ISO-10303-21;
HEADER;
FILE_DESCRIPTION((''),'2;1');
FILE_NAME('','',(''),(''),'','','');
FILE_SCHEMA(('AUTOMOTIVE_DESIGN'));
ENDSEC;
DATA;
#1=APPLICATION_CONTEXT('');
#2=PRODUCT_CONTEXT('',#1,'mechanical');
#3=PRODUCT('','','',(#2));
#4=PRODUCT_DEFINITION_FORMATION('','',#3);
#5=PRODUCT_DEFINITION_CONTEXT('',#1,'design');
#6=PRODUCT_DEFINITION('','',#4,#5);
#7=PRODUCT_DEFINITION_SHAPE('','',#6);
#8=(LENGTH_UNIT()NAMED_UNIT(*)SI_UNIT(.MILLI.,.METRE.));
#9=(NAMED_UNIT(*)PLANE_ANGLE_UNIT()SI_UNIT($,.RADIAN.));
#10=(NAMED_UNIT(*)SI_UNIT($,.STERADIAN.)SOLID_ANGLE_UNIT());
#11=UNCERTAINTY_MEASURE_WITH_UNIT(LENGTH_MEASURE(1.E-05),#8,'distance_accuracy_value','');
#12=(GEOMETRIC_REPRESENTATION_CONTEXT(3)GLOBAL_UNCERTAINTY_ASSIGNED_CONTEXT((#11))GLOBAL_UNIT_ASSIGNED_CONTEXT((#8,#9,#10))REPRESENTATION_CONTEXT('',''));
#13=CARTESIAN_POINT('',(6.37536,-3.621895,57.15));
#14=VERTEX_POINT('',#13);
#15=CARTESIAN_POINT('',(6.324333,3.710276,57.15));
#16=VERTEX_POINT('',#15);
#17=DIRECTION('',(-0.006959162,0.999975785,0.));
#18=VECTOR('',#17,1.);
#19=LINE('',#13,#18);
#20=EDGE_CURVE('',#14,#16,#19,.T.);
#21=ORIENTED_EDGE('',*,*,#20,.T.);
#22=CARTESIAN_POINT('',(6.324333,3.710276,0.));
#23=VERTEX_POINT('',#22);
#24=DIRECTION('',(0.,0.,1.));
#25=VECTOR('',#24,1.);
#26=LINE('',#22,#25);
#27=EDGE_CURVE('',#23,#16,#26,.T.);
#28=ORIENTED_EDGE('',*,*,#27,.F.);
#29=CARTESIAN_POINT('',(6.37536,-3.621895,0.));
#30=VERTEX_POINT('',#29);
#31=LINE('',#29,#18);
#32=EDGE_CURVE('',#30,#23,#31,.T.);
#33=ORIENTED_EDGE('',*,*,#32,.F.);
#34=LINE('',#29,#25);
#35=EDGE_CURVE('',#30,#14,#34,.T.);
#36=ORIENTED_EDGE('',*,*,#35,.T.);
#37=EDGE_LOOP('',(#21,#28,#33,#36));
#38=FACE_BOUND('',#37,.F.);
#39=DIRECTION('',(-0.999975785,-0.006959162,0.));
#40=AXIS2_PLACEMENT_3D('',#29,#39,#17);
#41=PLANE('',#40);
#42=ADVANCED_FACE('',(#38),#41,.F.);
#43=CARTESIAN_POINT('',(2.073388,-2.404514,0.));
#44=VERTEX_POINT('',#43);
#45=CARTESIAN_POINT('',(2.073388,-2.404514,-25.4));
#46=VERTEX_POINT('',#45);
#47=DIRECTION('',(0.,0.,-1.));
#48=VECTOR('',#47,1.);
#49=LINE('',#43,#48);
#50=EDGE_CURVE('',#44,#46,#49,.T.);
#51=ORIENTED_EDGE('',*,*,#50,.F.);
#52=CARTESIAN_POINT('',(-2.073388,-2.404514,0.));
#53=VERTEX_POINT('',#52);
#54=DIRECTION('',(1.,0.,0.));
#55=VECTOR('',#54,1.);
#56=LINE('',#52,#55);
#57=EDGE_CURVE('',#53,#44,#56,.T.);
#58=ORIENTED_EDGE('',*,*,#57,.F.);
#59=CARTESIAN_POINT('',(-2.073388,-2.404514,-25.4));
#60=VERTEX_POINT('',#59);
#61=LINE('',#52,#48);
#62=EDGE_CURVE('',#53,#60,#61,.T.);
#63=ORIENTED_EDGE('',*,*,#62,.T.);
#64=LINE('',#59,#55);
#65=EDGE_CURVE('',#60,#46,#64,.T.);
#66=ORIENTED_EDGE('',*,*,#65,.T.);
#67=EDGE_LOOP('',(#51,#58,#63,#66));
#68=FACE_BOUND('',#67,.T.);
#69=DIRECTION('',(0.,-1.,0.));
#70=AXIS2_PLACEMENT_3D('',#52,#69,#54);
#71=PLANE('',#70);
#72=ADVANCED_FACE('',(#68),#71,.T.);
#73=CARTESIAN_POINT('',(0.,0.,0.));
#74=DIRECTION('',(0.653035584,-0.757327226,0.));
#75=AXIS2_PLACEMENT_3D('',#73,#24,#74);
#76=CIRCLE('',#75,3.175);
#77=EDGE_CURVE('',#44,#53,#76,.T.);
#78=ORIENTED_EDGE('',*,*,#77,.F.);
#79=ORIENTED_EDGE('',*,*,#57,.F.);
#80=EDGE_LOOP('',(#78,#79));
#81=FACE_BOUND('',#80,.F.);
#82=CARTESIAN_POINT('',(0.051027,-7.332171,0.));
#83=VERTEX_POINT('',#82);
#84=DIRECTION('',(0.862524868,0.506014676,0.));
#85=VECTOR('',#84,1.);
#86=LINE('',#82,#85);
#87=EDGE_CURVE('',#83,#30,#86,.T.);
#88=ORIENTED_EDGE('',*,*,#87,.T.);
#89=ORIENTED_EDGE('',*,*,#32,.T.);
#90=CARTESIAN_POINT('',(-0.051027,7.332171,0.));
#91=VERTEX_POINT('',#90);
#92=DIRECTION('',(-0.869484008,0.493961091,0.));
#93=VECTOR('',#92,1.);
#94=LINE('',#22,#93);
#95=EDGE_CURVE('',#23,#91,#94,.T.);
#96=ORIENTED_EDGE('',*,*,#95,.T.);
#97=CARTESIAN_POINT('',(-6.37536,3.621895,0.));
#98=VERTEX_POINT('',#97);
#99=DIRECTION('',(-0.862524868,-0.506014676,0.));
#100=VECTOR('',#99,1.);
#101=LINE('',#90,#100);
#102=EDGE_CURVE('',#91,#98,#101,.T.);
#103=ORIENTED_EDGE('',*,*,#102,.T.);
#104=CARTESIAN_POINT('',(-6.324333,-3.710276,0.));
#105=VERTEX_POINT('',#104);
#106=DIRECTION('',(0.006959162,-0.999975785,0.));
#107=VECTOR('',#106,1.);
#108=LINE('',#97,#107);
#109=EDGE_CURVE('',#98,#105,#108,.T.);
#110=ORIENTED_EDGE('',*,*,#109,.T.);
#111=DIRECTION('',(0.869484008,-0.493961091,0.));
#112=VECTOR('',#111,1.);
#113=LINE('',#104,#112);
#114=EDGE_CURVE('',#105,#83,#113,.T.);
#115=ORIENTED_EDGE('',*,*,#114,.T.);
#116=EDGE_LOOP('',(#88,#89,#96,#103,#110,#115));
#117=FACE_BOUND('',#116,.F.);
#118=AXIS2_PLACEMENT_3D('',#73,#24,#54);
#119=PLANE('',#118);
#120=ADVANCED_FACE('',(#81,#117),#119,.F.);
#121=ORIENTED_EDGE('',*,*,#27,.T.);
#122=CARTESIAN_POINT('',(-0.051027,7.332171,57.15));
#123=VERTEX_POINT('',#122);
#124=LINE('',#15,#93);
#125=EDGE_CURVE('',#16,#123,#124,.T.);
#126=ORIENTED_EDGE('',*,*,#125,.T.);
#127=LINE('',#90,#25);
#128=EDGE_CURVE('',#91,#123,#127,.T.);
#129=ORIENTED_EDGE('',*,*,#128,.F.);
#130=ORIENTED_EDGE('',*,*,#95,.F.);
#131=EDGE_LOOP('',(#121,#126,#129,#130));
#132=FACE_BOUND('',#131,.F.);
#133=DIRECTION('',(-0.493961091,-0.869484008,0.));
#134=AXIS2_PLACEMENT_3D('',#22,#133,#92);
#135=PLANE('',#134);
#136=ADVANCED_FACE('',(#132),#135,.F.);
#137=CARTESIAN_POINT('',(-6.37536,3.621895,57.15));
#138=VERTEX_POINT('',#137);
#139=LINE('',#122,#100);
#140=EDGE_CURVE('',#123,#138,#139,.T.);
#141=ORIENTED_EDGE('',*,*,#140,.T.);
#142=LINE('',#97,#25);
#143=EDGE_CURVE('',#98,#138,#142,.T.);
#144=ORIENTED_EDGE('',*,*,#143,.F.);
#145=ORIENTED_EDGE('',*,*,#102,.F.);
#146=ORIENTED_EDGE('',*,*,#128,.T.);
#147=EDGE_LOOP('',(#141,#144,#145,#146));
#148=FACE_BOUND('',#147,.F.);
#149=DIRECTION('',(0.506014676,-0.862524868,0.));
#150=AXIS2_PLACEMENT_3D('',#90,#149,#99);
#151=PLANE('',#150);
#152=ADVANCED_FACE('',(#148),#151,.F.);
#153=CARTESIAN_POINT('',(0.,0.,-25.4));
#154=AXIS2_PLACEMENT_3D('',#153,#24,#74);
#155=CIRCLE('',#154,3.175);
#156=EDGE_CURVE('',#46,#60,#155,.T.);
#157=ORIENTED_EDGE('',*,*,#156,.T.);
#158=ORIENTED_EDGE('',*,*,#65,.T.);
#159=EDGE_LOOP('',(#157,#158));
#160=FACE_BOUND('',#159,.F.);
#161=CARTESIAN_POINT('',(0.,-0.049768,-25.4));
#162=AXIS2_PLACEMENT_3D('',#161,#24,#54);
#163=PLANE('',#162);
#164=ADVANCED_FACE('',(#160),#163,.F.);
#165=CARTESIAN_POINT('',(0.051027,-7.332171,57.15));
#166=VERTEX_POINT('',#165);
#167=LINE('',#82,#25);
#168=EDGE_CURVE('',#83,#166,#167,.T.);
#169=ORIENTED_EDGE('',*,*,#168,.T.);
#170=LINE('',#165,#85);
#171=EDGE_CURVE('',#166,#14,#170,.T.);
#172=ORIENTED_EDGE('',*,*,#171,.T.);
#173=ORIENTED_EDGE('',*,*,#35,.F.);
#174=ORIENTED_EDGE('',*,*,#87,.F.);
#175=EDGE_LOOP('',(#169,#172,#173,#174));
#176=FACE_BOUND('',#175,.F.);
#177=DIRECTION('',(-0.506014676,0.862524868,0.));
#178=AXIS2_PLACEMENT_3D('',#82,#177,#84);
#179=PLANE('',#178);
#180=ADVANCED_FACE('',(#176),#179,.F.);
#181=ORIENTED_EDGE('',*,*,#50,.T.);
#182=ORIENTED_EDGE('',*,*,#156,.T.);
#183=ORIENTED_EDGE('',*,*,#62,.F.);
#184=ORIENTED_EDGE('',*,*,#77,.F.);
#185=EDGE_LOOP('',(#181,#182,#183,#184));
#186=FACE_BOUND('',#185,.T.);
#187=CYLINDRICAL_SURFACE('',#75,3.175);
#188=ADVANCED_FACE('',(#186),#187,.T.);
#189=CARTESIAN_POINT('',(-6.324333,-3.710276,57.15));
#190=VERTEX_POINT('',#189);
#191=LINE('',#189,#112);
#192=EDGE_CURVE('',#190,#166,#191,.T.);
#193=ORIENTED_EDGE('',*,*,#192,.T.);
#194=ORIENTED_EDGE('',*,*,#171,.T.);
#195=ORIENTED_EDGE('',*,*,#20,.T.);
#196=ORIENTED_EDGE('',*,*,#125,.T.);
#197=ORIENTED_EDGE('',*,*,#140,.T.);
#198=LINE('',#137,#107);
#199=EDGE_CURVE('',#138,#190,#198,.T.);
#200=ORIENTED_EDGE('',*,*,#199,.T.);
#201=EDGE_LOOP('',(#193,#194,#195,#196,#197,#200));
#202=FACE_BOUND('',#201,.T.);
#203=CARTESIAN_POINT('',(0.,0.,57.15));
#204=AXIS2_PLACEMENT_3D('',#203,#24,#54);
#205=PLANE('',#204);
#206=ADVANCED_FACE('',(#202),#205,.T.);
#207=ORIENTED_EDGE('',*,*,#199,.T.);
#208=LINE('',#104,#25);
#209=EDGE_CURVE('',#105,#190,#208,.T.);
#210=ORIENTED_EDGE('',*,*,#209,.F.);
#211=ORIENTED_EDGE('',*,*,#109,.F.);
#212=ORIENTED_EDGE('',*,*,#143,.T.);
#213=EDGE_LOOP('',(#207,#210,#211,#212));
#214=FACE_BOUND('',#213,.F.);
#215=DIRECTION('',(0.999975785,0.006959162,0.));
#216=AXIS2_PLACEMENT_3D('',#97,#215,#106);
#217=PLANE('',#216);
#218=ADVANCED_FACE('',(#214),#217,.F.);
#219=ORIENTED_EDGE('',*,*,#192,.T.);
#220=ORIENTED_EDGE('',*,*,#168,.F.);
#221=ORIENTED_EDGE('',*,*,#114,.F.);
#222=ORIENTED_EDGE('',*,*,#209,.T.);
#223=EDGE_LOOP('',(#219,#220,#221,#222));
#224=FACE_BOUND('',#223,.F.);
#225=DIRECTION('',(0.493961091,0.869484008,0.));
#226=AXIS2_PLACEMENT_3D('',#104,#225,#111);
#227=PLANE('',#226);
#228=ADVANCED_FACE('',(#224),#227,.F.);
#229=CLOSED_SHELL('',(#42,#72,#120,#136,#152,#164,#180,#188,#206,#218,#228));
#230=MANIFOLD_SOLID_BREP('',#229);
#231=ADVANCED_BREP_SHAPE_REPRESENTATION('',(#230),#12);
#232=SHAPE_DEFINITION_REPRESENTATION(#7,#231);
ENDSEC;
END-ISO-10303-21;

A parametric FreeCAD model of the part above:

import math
import FreeCAD as App
import Part
import Sketcher
from FreeCAD import Vector
Q = App.Units.Quantity


def add_polygon(sketch, points):
    """Adds a closed chain of lines whose ends are joined by coincident constraints."""
    first, n = sketch.GeometryCount, len(points)
    for a, b in zip(points, points[1:] + points[:1]):
        sketch.addGeometry(Part.LineSegment(App.Vector(*a, 0), App.Vector(*b, 0)), False)
    for i in range(n):
        sketch.addConstraint(Sketcher.Constraint("Coincident", first + i, 2, first + (i + 1) % n, 1))

doc = App.newDocument("Part")
body = doc.addObject("PartDesign::Body", "Body")

# Sketch on XY plane
sketch1 = doc.addObject("Sketcher::SketchObject", "Sketch")
body.addObject(sketch1)
sketch1.AttachmentSupport = (doc.XY_Plane, [""])
sketch1.MapMode = "FlatFace"
add_polygon(sketch1, [(0, -7), (6, -4), (6, 4), (0, 7), (-6, 4), (-6, -4)])  # lines 0-5
sketch1.addConstraint(Sketcher.Constraint("Symmetric", 0, 2, 3, 2, -1, 1))
sketch1.addConstraint(Sketcher.Constraint("Symmetric", 1, 2, 4, 2, -1, 1))
sketch1.addConstraint(Sketcher.Constraint("Symmetric", 2, 2, 5, 2, -1, 1))
sketch1.addConstraint(Sketcher.Constraint("Equal", 0, 1))
sketch1.addConstraint(Sketcher.Constraint("Equal", 1, 2))
sketch1.addConstraint(Sketcher.Constraint("Distance", 0, 7.332349))
sketch1.addConstraint(Sketcher.Constraint("DistanceX", -1, 1, 0, 2, 6.37536))
sketch1.addConstraint(Sketcher.Constraint("DistanceY", -1, 1, 2, 2, 7.332171))
sketch1.addConstraint(Sketcher.Constraint("DistanceX", 2, 2, 1, 2, 6.37536))
pad1 = doc.addObject("PartDesign::Pad", "Pad")
body.addObject(pad1)
pad1.Profile = sketch1
pad1.Length = Q("2.25 in")

# Sketch on XY plane
sketch2 = doc.addObject("Sketcher::SketchObject", "Sketch001")
body.addObject(sketch2)
sketch2.AttachmentSupport = (doc.XY_Plane, [""])
sketch2.MapMode = "FlatFace"
sketch2.addGeometry(Part.LineSegment(Vector(-2.1, -2.4, 0), Vector(2.1, -2.4, 0)), False)
sketch2.addGeometry(Part.ArcOfCircle(Part.Circle(Vector(0, 0, 0), Vector(0, 0, 1), 3.2), math.radians(-49), math.radians(229)), False)
sketch2.addConstraint(Sketcher.Constraint("Coincident", 0, 1, 1, 2))
sketch2.addConstraint(Sketcher.Constraint("Coincident", 1, 1, 0, 2))
sketch2.addConstraint(Sketcher.Constraint("Horizontal", 0))
sketch2.addConstraint(Sketcher.Constraint("Coincident", 1, 3, -1, 1))
sketch2.addConstraint(Sketcher.Constraint("Radius", 1, Q("0.125 in")))
sketch2.addConstraint(Sketcher.Constraint("DistanceX", 0, 1, 0, 2, 4.146776))
pad2 = doc.addObject("PartDesign::Pad", "Pad001")
body.addObject(pad2)
pad2.Profile = sketch2
pad2.Length = Q("1 in")
pad2.Reversed = True

doc.recompute()
